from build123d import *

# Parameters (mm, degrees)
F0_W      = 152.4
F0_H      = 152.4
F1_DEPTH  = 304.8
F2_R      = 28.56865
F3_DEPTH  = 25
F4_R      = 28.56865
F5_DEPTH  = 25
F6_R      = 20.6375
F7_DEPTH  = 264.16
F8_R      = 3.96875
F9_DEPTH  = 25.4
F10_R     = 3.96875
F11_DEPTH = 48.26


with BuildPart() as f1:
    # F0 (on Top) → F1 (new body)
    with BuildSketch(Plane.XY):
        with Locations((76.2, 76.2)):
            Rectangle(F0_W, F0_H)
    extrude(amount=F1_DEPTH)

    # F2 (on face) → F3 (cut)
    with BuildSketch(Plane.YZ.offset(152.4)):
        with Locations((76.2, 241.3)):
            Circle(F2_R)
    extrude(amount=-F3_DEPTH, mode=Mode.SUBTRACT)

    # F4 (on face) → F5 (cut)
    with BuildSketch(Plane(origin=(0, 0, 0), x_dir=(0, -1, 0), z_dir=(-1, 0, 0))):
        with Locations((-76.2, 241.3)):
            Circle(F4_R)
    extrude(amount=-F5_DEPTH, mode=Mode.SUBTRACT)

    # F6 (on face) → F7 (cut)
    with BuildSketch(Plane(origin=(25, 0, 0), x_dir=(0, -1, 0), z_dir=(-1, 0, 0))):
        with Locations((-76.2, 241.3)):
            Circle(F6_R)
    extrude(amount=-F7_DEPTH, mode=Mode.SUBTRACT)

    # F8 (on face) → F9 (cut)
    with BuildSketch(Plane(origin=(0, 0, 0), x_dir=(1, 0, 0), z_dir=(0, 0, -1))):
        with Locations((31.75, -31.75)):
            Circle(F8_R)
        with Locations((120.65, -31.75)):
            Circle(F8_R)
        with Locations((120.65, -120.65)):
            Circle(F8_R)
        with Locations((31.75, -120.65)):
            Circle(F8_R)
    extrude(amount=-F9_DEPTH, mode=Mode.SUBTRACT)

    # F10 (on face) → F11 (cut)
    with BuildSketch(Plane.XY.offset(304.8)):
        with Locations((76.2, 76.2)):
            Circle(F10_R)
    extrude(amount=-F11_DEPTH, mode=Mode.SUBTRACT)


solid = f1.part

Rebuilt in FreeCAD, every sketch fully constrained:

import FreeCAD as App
import Part
import Sketcher
Q = App.Units.Quantity


def add_polygon(sketch, points):
    """Adds a closed chain of lines whose ends are joined by coincident constraints."""
    first, n = sketch.GeometryCount, len(points)
    for a, b in zip(points, points[1:] + points[:1]):
        sketch.addGeometry(Part.LineSegment(App.Vector(*a, 0), App.Vector(*b, 0)), False)
    for i in range(n):
        sketch.addConstraint(Sketcher.Constraint("Coincident", first + i, 2, first + (i + 1) % n, 1))

doc = App.newDocument("Part")
body = doc.addObject("PartDesign::Body", "Body")

# Sketch on XY plane
sketch1 = body.newObject("Sketcher::SketchObject", "Sketch")
sketch1.AttachmentSupport = (doc.getObject("XY_Plane"), [""])
sketch1.MapMode = "FlatFace"
add_polygon(sketch1, [(0, 152), (0, 0), (152, 0), (152, 152)])  # lines 0-3
sketch1.addConstraint(Sketcher.Constraint("Vertical", 0))
sketch1.addConstraint(Sketcher.Constraint("Horizontal", 1))
sketch1.addConstraint(Sketcher.Constraint("Vertical", 2))
sketch1.addConstraint(Sketcher.Constraint("Horizontal", 3))
sketch1.addConstraint(Sketcher.Constraint("Coincident", 0, 2, -1, 1))
sketch1.addConstraint(Sketcher.Constraint("Equal", 3, 0))
sketch1.addConstraint(Sketcher.Constraint("DistanceX", 1, 1, 1, 2, Q("6 in")))
pad1 = body.newObject("PartDesign::Pad", "Pad")
pad1.Profile = sketch1
pad1.Length = Q("12 in")

# Sketch on YZ plane
sketch2 = body.newObject("Sketcher::SketchObject", "Sketch001")
sketch2.AttachmentSupport = (doc.getObject("YZ_Plane"), [""])
sketch2.MapMode = "FlatFace"
sketch2.AttachmentOffset = App.Placement(App.Vector(0, 0, 6 * 25.4), App.Rotation())
sketch2.addGeometry(Part.Circle(App.Vector(76, 241, 0), App.Vector(0, 0, 1), 29), False)
sketch2.addConstraint(Sketcher.Constraint("DistanceX", -1, 1, 0, 3, Q("3 in")))
sketch2.addConstraint(Sketcher.Constraint("Diameter", 0, Q("2.2495 in")))
sketch2.addConstraint(Sketcher.Constraint("DistanceY", -1, 1, 0, 3, Q("9.5 in")))
pocket1 = body.newObject("PartDesign::Pocket", "Pocket")
pocket1.Profile = sketch2
pocket1.Length = 25

# Sketch on YZ plane
sketch3 = body.newObject("Sketcher::SketchObject", "Sketch002")
sketch3.AttachmentSupport = (doc.getObject("YZ_Plane"), [""])
sketch3.MapMode = "FlatFace"
sketch3.addGeometry(Part.Circle(App.Vector(76, 241, 0), App.Vector(0, 0, 1), 29), False)
sketch3.addConstraint(Sketcher.Constraint("DistanceX", -1, 1, 0, 3, Q("3 in")))
sketch3.addConstraint(Sketcher.Constraint("Diameter", 0, Q("2.2495 in")))
sketch3.addConstraint(Sketcher.Constraint("DistanceY", -1, 1, 0, 3, Q("9.5 in")))
pocket2 = body.newObject("PartDesign::Pocket", "Pocket001")
pocket2.Profile = sketch3
pocket2.Length = 25
pocket2.Reversed = True

# Sketch on YZ plane
sketch4 = body.newObject("Sketcher::SketchObject", "Sketch003")
sketch4.AttachmentSupport = (doc.getObject("YZ_Plane"), [""])
sketch4.MapMode = "FlatFace"
sketch4.AttachmentOffset = App.Placement(App.Vector(0, 0, 25), App.Rotation())
sketch4.addGeometry(Part.Circle(App.Vector(76, 241, 0), App.Vector(0, 0, 1), 21), False)
sketch4.addConstraint(Sketcher.Constraint("Diameter", 0, Q("1.625 in")))
sketch4.addConstraint(Sketcher.Constraint("DistanceX", -1, 1, 0, 3, Q("3 in")))
sketch4.addConstraint(Sketcher.Constraint("DistanceY", -1, 1, 0, 3, Q("9.5 in")))
pocket3 = body.newObject("PartDesign::Pocket", "Pocket002")
pocket3.Profile = sketch4
pocket3.Length = Q("10.4 in")
pocket3.Reversed = True

# Sketch on XY plane
sketch5 = body.newObject("Sketcher::SketchObject", "Sketch004")
sketch5.AttachmentSupport = (doc.getObject("XY_Plane"), [""])
sketch5.MapMode = "FlatFace"
sketch5.addGeometry(Part.Circle(App.Vector(31.8, 31.8, 0), App.Vector(0, 0, 1), 4), False)
sketch5.addGeometry(Part.Circle(App.Vector(120.7, 31.8, 0), App.Vector(0, 0, 1), 4), False)
sketch5.addGeometry(Part.Circle(App.Vector(120.7, 120.7, 0), App.Vector(0, 0, 1), 4), False)
sketch5.addGeometry(Part.Circle(App.Vector(31.8, 120.7, 0), App.Vector(0, 0, 1), 4), False)
sketch5.addConstraint(Sketcher.Constraint("Equal", 0, 1))
sketch5.addConstraint(Sketcher.Constraint("Equal", 1, 2))
sketch5.addConstraint(Sketcher.Constraint("Equal", 2, 3))
sketch5.addConstraint(Sketcher.Constraint("Horizontal", 0, 3, 1, 3))
sketch5.addConstraint(Sketcher.Constraint("Horizontal", 2, 3, 3, 3))
sketch5.addConstraint(Sketcher.Constraint("Vertical", 1, 3, 2, 3))
sketch5.addConstraint(Sketcher.Constraint("Vertical", 0, 3, 3, 3))
sketch5.addConstraint(Sketcher.Constraint("Diameter", 0, Q("0.3125 in")))
sketch5.addConstraint(Sketcher.Constraint("DistanceX", 0, 3, 1, 3, Q("3.5 in")))
sketch5.addConstraint(Sketcher.Constraint("DistanceY", 1, 3, 2, 3, Q("3.5 in")))
sketch5.addConstraint(Sketcher.Constraint("DistanceX", -1, 1, 0, 3, Q("1.25 in")))
sketch5.addConstraint(Sketcher.Constraint("DistanceY", -1, 1, 0, 3, Q("1.25 in")))
pocket4 = body.newObject("PartDesign::Pocket", "Pocket003")
pocket4.Profile = sketch5
pocket4.Length = Q("1 in")
pocket4.Reversed = True

# Sketch on XY plane
sketch6 = body.newObject("Sketcher::SketchObject", "Sketch005")
sketch6.AttachmentSupport = (doc.getObject("XY_Plane"), [""])
sketch6.MapMode = "FlatFace"
sketch6.AttachmentOffset = App.Placement(App.Vector(0, 0, 12 * 25.4), App.Rotation())
sketch6.addGeometry(Part.Circle(App.Vector(76.2, 76.2, 0), App.Vector(0, 0, 1), 4), False)
sketch6.addConstraint(Sketcher.Constraint("Diameter", 0, Q("0.3125 in")))
sketch6.addConstraint(Sketcher.Constraint("DistanceX", -1, 1, 0, 3, Q("3 in")))
sketch6.addConstraint(Sketcher.Constraint("DistanceY", -1, 1, 0, 3, Q("3 in")))
pocket5 = body.newObject("PartDesign::Pocket", "Pocket004")
pocket5.Profile = sketch6
pocket5.Length = Q("1.9 in")

doc.recompute()
